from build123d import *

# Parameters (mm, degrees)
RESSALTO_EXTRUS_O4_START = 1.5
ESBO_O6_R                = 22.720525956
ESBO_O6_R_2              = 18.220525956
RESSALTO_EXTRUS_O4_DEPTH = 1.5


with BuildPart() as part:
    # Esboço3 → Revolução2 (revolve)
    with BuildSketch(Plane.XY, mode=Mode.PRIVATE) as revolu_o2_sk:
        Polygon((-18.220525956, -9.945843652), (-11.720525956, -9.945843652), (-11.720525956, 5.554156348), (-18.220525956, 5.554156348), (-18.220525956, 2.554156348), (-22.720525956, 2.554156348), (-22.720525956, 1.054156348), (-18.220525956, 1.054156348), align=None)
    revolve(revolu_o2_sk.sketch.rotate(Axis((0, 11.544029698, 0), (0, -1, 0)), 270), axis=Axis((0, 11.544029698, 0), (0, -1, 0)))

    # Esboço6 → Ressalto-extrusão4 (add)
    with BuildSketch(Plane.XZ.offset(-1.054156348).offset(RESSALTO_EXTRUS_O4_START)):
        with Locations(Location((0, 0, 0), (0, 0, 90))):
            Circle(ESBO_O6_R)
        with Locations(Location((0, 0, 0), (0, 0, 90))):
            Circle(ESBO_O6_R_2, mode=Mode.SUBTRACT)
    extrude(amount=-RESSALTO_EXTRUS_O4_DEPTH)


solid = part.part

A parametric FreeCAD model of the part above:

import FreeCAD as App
import Part
import Sketcher

V = App.Vector
Q = App.Units.Quantity


def add_polygon(sketch, points):
    """Adds a closed chain of lines whose ends are joined by coincident constraints."""
    first, n = sketch.GeometryCount, len(points)
    for a, b in zip(points, points[1:] + points[:1]):
        sketch.addGeometry(Part.LineSegment(App.Vector(*a, 0), App.Vector(*b, 0)), False)
    for i in range(n):
        sketch.addConstraint(Sketcher.Constraint("Coincident", first + i, 2, first + (i + 1) % n, 1))

doc = App.newDocument("Part")
body = doc.addObject("PartDesign::Body", "Body")

# Sketch on XY plane
sketch1 = body.newObject("Sketcher::SketchObject", "Sketch")
sketch1.AttachmentSupport = (doc.getObject("XY_Plane"), [""])
sketch1.MapMode = "FlatFace"
add_polygon(sketch1, [(-18.2, -9.9), (-11.7, -9.9), (-11.7, 5.6), (-18.2, 5.6), (-18.2, 2.6), (-22.7, 2.6), (-22.7, 1.1), (-18.2, 1.1)])  # lines 0-7
sketch1.addConstraint([
    Sketcher.Constraint("Horizontal", 0),
    Sketcher.Constraint("Vertical", 1),
    Sketcher.Constraint("Horizontal", 2),
    Sketcher.Constraint("Vertical", 3),
    Sketcher.Constraint("Horizontal", 4),
    Sketcher.Constraint("Vertical", 5),
    Sketcher.Constraint("Horizontal", 6),
    Sketcher.Constraint("Vertical", 7),
    Sketcher.Constraint("Vertical", 3, 2, 6, 2),
    Sketcher.Constraint("DistanceY", 3, 2, 3, 1, Q("3 mm")),
    Sketcher.Constraint("DistanceY", 7, 2, 7, 1, Q("11 mm")),
    Sketcher.Constraint("DistanceX", 0, 1, 0, 2, Q("6.5 mm")),
    Sketcher.Constraint("DistanceX", 4, 2, 4, 1, Q("4.5 mm")),
    Sketcher.Constraint("DistanceY", 1, 1, 1, 2, Q("15.5 mm")),
    Sketcher.Constraint("DistanceX", 0, 2, -1, 1, Q("11.720526 mm")),
    Sketcher.Constraint("DistanceY", 0, 2, -1, 1, Q("9.945844 mm")),
])
revolution = body.newObject("PartDesign::Revolution", "Revolution")
revolution.Profile = sketch1
revolution.ReferenceAxis = (sketch1, ["V_Axis"])
revolution.Angle = 360

# Sketch on XZ plane
sketch2 = body.newObject("Sketcher::SketchObject", "Sketch001")
sketch2.AttachmentSupport = (doc.getObject("XZ_Plane"), [""])
sketch2.MapMode = "FlatFace"
sketch2.AttachmentOffset = App.Placement(V(0, 0, 0.445844), App.Rotation())
sketch2.addGeometry([
    Part.Circle(V(0, 0, 0), V(0, 0, 1), 23),
    Part.Circle(V(0, 0, 0), V(0, 0, 1), 18),
], False)
sketch2.addConstraint([
    Sketcher.Constraint("Coincident", 0, 3, -1, 1),
    Sketcher.Constraint("Coincident", 1, 3, -1, 1),
    Sketcher.Constraint("Diameter", 0, Q("45.441052 mm")),
    Sketcher.Constraint("Diameter", 1, Q("36.441052 mm")),
])
pad1 = body.newObject("PartDesign::Pad", "Pad")
pad1.Profile = sketch2
pad1.Length = 1.5
pad1.Reversed = True

doc.recompute()
